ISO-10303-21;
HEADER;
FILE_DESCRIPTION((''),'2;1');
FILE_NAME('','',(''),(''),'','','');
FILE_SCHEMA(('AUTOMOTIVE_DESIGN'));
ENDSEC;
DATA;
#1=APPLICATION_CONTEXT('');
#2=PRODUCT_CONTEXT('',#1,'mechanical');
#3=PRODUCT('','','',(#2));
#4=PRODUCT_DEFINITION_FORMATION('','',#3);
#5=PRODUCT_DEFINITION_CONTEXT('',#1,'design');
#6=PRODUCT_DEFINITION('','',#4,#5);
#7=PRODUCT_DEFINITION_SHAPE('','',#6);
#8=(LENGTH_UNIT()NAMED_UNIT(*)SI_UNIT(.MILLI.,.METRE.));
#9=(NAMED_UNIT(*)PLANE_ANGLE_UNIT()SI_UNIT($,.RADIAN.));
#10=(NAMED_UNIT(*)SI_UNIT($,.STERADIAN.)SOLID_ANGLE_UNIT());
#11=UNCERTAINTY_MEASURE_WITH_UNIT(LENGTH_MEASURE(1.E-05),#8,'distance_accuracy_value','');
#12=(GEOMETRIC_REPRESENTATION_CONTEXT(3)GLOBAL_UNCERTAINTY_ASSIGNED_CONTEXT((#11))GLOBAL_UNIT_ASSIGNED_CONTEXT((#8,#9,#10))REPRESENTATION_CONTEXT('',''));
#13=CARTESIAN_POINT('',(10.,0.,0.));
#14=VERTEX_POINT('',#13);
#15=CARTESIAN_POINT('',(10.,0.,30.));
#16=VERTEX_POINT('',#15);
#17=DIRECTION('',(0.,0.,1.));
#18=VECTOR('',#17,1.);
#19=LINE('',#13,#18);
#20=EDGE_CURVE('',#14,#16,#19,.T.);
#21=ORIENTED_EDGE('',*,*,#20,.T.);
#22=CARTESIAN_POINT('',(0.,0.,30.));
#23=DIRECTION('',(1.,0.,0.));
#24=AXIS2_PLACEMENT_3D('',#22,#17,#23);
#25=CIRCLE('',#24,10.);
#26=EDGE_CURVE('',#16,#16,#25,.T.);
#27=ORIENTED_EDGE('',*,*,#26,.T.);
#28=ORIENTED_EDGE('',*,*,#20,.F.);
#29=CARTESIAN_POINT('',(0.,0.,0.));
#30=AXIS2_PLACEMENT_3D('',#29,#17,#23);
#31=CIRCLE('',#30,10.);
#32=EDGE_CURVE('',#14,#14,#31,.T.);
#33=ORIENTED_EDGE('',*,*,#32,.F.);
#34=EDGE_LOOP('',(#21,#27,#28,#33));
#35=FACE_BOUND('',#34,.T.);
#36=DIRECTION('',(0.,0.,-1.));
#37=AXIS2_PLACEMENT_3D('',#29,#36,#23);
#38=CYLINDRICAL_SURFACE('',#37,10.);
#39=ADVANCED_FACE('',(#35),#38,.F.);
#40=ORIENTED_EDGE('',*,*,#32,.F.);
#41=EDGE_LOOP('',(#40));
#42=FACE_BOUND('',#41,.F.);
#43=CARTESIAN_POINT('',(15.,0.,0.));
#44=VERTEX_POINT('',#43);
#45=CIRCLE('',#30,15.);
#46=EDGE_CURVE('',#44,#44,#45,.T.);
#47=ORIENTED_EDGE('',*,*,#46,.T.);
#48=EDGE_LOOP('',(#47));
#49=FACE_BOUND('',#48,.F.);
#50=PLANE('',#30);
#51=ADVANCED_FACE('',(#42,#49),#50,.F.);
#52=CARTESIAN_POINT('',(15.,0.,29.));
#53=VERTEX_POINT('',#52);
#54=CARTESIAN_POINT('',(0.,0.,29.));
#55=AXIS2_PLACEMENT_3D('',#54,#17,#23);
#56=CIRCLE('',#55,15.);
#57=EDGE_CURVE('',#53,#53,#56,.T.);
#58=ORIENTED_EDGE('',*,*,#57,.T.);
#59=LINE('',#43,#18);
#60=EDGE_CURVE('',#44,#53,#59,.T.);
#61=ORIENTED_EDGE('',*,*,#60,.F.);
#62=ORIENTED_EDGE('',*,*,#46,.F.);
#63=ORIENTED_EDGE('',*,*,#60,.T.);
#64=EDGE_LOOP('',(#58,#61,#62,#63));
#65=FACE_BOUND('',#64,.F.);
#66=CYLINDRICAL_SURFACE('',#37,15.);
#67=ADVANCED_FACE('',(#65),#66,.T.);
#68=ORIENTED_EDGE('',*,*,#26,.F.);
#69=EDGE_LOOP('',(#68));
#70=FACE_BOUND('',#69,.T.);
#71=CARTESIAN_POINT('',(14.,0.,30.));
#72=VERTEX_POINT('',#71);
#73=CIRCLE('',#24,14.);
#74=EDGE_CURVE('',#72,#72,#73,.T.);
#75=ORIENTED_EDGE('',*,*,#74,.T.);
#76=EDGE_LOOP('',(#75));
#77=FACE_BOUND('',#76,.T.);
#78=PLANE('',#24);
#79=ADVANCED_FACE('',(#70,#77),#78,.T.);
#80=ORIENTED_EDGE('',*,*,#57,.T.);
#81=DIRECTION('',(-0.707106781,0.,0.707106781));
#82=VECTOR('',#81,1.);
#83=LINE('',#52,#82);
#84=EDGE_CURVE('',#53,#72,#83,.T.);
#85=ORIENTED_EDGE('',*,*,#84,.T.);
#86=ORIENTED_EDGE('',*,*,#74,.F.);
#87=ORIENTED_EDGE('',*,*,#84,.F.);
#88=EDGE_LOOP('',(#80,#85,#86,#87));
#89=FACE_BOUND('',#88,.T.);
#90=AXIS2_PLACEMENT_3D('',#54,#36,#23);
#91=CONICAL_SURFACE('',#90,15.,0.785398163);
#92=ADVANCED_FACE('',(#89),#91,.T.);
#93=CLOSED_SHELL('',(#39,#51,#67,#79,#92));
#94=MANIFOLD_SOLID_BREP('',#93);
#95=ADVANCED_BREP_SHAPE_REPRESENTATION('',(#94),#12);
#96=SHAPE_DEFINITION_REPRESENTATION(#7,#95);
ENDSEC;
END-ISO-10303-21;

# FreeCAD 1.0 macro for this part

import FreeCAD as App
import Part
import Sketcher
from FreeCAD import Vector


def edges_at(feature, points):
    """Names of the edges that pass closest to the given points."""
    edges = feature.Shape.Edges
    near = lambda p: min(range(len(edges)), key=lambda i: edges[i].distToShape(Part.Vertex(*p))[0])
    return sorted({f"Edge{near(p) + 1}" for p in points})

doc = App.newDocument("Part")
body = doc.addObject("PartDesign::Body", "Body")

# Sketch on XY plane
sketch1 = body.newObject("Sketcher::SketchObject", "Sketch")
sketch1.AttachmentSupport = (doc.getObject("XY_Plane"), [""])
sketch1.MapMode = "FlatFace"
sketch1.addGeometry(Part.Circle(Vector(0, 0, 0), Vector(0, 0, 1), 15), False)
sketch1.addGeometry(Part.Circle(Vector(0, 0, 0), Vector(0, 0, 1), 10), False)
sketch1.addConstraint(Sketcher.Constraint("Coincident", 0, 3, -1, 1))
sketch1.addConstraint(Sketcher.Constraint("Coincident", 1, 3, -1, 1))
sketch1.addConstraint(Sketcher.Constraint("Diameter", 0, 30.0))
sketch1.addConstraint(Sketcher.Constraint("Diameter", 1, 20.0))
pad1 = body.newObject("PartDesign::Pad", "Pad")
pad1.Profile = sketch1
pad1.Length = 30
doc.recompute()

chamfer = body.newObject("PartDesign::Chamfer", "Chamfer")
chamfer.Base = (pad1, edges_at(pad1, [(-15, 0, 30)]))
chamfer.Size = 1

doc.recompute()
